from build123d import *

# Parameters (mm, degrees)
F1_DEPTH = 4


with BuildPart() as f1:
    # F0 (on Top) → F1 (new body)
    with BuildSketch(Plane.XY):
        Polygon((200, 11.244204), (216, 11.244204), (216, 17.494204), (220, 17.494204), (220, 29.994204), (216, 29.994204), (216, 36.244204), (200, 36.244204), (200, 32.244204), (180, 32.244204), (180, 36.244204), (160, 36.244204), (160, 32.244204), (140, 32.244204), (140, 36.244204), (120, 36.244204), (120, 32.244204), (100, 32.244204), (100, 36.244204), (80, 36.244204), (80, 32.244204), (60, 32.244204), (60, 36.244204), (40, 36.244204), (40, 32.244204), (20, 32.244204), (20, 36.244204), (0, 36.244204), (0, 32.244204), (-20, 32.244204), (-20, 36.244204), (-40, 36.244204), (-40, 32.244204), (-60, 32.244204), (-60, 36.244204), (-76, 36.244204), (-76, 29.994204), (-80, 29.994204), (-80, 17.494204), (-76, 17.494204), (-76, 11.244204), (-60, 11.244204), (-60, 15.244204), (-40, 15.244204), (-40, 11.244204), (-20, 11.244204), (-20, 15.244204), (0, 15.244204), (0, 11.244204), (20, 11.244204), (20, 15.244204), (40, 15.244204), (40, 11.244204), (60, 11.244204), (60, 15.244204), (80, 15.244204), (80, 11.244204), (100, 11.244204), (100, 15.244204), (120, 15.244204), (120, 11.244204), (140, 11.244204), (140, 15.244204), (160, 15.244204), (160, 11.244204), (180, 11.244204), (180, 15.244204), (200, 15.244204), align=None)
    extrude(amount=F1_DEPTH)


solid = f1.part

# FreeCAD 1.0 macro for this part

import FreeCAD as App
import Part
import Sketcher
from FreeCAD import Vector
Q = App.Units.Quantity

doc = App.newDocument("Part")
body = doc.addObject("PartDesign::Body", "Body")

# Sketch on XY plane
sketch1 = doc.addObject("Sketcher::SketchObject", "Sketch")
body.addObject(sketch1)
sketch1.AttachmentSupport = (doc.XY_Plane, [""])
sketch1.MapMode = "FlatFace"
sketch1.addGeometry(Part.LineSegment(Vector(200, 11.2, 0), Vector(216, 11.2, 0)), False)
sketch1.addGeometry(Part.LineSegment(Vector(216, 11.2, 0), Vector(216, 17.5, 0)), False)
sketch1.addGeometry(Part.LineSegment(Vector(216, 17.5, 0), Vector(220, 17.5, 0)), False)
sketch1.addGeometry(Part.LineSegment(Vector(220, 17.5, 0), Vector(220, 30, 0)), False)
sketch1.addGeometry(Part.LineSegment(Vector(220, 30, 0), Vector(216, 30, 0)), False)
sketch1.addGeometry(Part.LineSegment(Vector(216, 30, 0), Vector(216, 36.2, 0)), False)
sketch1.addGeometry(Part.LineSegment(Vector(216, 36.2, 0), Vector(200, 36.2, 0)), False)
sketch1.addGeometry(Part.LineSegment(Vector(200, 36.2, 0), Vector(200, 32.2, 0)), False)
sketch1.addGeometry(Part.LineSegment(Vector(200, 32.2, 0), Vector(180, 32.2, 0)), False)
sketch1.addGeometry(Part.LineSegment(Vector(180, 32.2, 0), Vector(180, 36.2, 0)), False)
sketch1.addGeometry(Part.LineSegment(Vector(180, 36.2, 0), Vector(160, 36.2, 0)), False)
sketch1.addGeometry(Part.LineSegment(Vector(160, 36.2, 0), Vector(160, 32.2, 0)), False)
sketch1.addGeometry(Part.LineSegment(Vector(160, 32.2, 0), Vector(140, 32.2, 0)), False)
sketch1.addGeometry(Part.LineSegment(Vector(140, 32.2, 0), Vector(140, 36.2, 0)), False)
sketch1.addGeometry(Part.LineSegment(Vector(140, 36.2, 0), Vector(120, 36.2, 0)), False)
sketch1.addGeometry(Part.LineSegment(Vector(120, 36.2, 0), Vector(120, 32.2, 0)), False)
sketch1.addGeometry(Part.LineSegment(Vector(120, 32.2, 0), Vector(100, 32.2, 0)), False)
sketch1.addGeometry(Part.LineSegment(Vector(100, 32.2, 0), Vector(100, 36.2, 0)), False)
sketch1.addGeometry(Part.LineSegment(Vector(100, 36.2, 0), Vector(80, 36.2, 0)), False)
sketch1.addGeometry(Part.LineSegment(Vector(80, 36.2, 0), Vector(80, 32.2, 0)), False)
sketch1.addGeometry(Part.LineSegment(Vector(80, 32.2, 0), Vector(60, 32.2, 0)), False)
sketch1.addGeometry(Part.LineSegment(Vector(60, 32.2, 0), Vector(60, 36.2, 0)), False)
sketch1.addGeometry(Part.LineSegment(Vector(60, 36.2, 0), Vector(40, 36.2, 0)), False)
sketch1.addGeometry(Part.LineSegment(Vector(40, 36.2, 0), Vector(40, 32.2, 0)), False)
sketch1.addGeometry(Part.LineSegment(Vector(40, 32.2, 0), Vector(20, 32.2, 0)), False)
sketch1.addGeometry(Part.LineSegment(Vector(20, 32.2, 0), Vector(20, 36.2, 0)), False)
sketch1.addGeometry(Part.LineSegment(Vector(20, 36.2, 0), Vector(0, 36.2, 0)), False)
sketch1.addGeometry(Part.LineSegment(Vector(0, 36.2, 0), Vector(0, 32.2, 0)), False)
sketch1.addGeometry(Part.LineSegment(Vector(0, 32.2, 0), Vector(-20, 32.2, 0)), False)
sketch1.addGeometry(Part.LineSegment(Vector(-20, 32.2, 0), Vector(-20, 36.2, 0)), False)
sketch1.addGeometry(Part.LineSegment(Vector(-20, 36.2, 0), Vector(-40, 36.2, 0)), False)
sketch1.addGeometry(Part.LineSegment(Vector(-40, 36.2, 0), Vector(-40, 32.2, 0)), False)
sketch1.addGeometry(Part.LineSegment(Vector(-40, 32.2, 0), Vector(-60, 32.2, 0)), False)
sketch1.addGeometry(Part.LineSegment(Vector(-60, 32.2, 0), Vector(-60, 36.2, 0)), False)
sketch1.addGeometry(Part.LineSegment(Vector(-60, 36.2, 0), Vector(-76, 36.2, 0)), False)
sketch1.addGeometry(Part.LineSegment(Vector(-76, 36.2, 0), Vector(-76, 30, 0)), False)
sketch1.addGeometry(Part.LineSegment(Vector(-76, 30, 0), Vector(-80, 30, 0)), False)
sketch1.addGeometry(Part.LineSegment(Vector(-80, 30, 0), Vector(-80, 17.5, 0)), False)
sketch1.addGeometry(Part.LineSegment(Vector(-80, 17.5, 0), Vector(-76, 17.5, 0)), False)
sketch1.addGeometry(Part.LineSegment(Vector(-76, 17.5, 0), Vector(-76, 11.2, 0)), False)
sketch1.addGeometry(Part.LineSegment(Vector(-76, 11.2, 0), Vector(-60, 11.2, 0)), False)
sketch1.addGeometry(Part.LineSegment(Vector(-60, 11.2, 0), Vector(-60, 15.2, 0)), False)
sketch1.addGeometry(Part.LineSegment(Vector(-60, 15.2, 0), Vector(-40, 15.2, 0)), False)
sketch1.addGeometry(Part.LineSegment(Vector(-40, 15.2, 0), Vector(-40, 11.2, 0)), False)
sketch1.addGeometry(Part.LineSegment(Vector(-40, 11.2, 0), Vector(-20, 11.2, 0)), False)
sketch1.addGeometry(Part.LineSegment(Vector(-20, 11.2, 0), Vector(-20, 15.2, 0)), False)
sketch1.addGeometry(Part.LineSegment(Vector(-20, 15.2, 0), Vector(0, 15.2, 0)), False)
sketch1.addGeometry(Part.LineSegment(Vector(0, 15.2, 0), Vector(0, 11.2, 0)), False)
sketch1.addGeometry(Part.LineSegment(Vector(0, 11.2, 0), Vector(20, 11.2, 0)), False)
sketch1.addGeometry(Part.LineSegment(Vector(20, 11.2, 0), Vector(20, 15.2, 0)), False)
sketch1.addGeometry(Part.LineSegment(Vector(20, 15.2, 0), Vector(40, 15.2, 0)), False)
sketch1.addGeometry(Part.LineSegment(Vector(40, 15.2, 0), Vector(40, 11.2, 0)), False)
sketch1.addGeometry(Part.LineSegment(Vector(40, 11.2, 0), Vector(60, 11.2, 0)), False)
sketch1.addGeometry(Part.LineSegment(Vector(60, 11.2, 0), Vector(60, 15.2, 0)), False)
sketch1.addGeometry(Part.LineSegment(Vector(60, 15.2, 0), Vector(80, 15.2, 0)), False)
sketch1.addGeometry(Part.LineSegment(Vector(80, 15.2, 0), Vector(80, 11.2, 0)), False)
sketch1.addGeometry(Part.LineSegment(Vector(80, 11.2, 0), Vector(100, 11.2, 0)), False)
sketch1.addGeometry(Part.LineSegment(Vector(100, 11.2, 0), Vector(100, 15.2, 0)), False)
sketch1.addGeometry(Part.LineSegment(Vector(100, 15.2, 0), Vector(120, 15.2, 0)), False)
sketch1.addGeometry(Part.LineSegment(Vector(120, 15.2, 0), Vector(120, 11.2, 0)), False)
sketch1.addGeometry(Part.LineSegment(Vector(120, 11.2, 0), Vector(140, 11.2, 0)), False)
sketch1.addGeometry(Part.LineSegment(Vector(140, 11.2, 0), Vector(140, 15.2, 0)), False)
sketch1.addGeometry(Part.LineSegment(Vector(140, 15.2, 0), Vector(160, 15.2, 0)), False)
sketch1.addGeometry(Part.LineSegment(Vector(160, 15.2, 0), Vector(160, 11.2, 0)), False)
sketch1.addGeometry(Part.LineSegment(Vector(160, 11.2, 0), Vector(180, 11.2, 0)), False)
sketch1.addGeometry(Part.LineSegment(Vector(180, 11.2, 0), Vector(180, 15.2, 0)), False)
sketch1.addGeometry(Part.LineSegment(Vector(180, 15.2, 0), Vector(200, 15.2, 0)), False)
sketch1.addGeometry(Part.LineSegment(Vector(200, 15.2, 0), Vector(200, 11.2, 0)), False)
sketch1.addConstraint(Sketcher.Constraint("Coincident", 0, 2, 1, 1))
sketch1.addConstraint(Sketcher.Constraint("Coincident", 1, 2, 2, 1))
sketch1.addConstraint(Sketcher.Constraint("Coincident", 2, 2, 3, 1))
sketch1.addConstraint(Sketcher.Constraint("Coincident", 3, 2, 4, 1))
sketch1.addConstraint(Sketcher.Constraint("Coincident", 4, 2, 5, 1))
sketch1.addConstraint(Sketcher.Constraint("Coincident", 5, 2, 6, 1))
sketch1.addConstraint(Sketcher.Constraint("Coincident", 6, 2, 7, 1))
sketch1.addConstraint(Sketcher.Constraint("Coincident", 7, 2, 8, 1))
sketch1.addConstraint(Sketcher.Constraint("Coincident", 8, 2, 9, 1))
sketch1.addConstraint(Sketcher.Constraint("Coincident", 9, 2, 10, 1))
sketch1.addConstraint(Sketcher.Constraint("Coincident", 10, 2, 11, 1))
sketch1.addConstraint(Sketcher.Constraint("Coincident", 11, 2, 12, 1))
sketch1.addConstraint(Sketcher.Constraint("Coincident", 12, 2, 13, 1))
sketch1.addConstraint(Sketcher.Constraint("Coincident", 13, 2, 14, 1))
sketch1.addConstraint(Sketcher.Constraint("Coincident", 14, 2, 15, 1))
sketch1.addConstraint(Sketcher.Constraint("Coincident", 15, 2, 16, 1))
sketch1.addConstraint(Sketcher.Constraint("Coincident", 16, 2, 17, 1))
sketch1.addConstraint(Sketcher.Constraint("Coincident", 17, 2, 18, 1))
sketch1.addConstraint(Sketcher.Constraint("Coincident", 18, 2, 19, 1))
sketch1.addConstraint(Sketcher.Constraint("Coincident", 19, 2, 20, 1))
sketch1.addConstraint(Sketcher.Constraint("Coincident", 20, 2, 21, 1))
sketch1.addConstraint(Sketcher.Constraint("Coincident", 21, 2, 22, 1))
sketch1.addConstraint(Sketcher.Constraint("Coincident", 22, 2, 23, 1))
sketch1.addConstraint(Sketcher.Constraint("Coincident", 23, 2, 24, 1))
sketch1.addConstraint(Sketcher.Constraint("Coincident", 24, 2, 25, 1))
sketch1.addConstraint(Sketcher.Constraint("Coincident", 25, 2, 26, 1))
sketch1.addConstraint(Sketcher.Constraint("Coincident", 26, 2, 27, 1))
sketch1.addConstraint(Sketcher.Constraint("Coincident", 27, 2, 28, 1))
sketch1.addConstraint(Sketcher.Constraint("Coincident", 28, 2, 29, 1))
sketch1.addConstraint(Sketcher.Constraint("Coincident", 29, 2, 30, 1))
sketch1.addConstraint(Sketcher.Constraint("Coincident", 30, 2, 31, 1))
sketch1.addConstraint(Sketcher.Constraint("Coincident", 31, 2, 32, 1))
sketch1.addConstraint(Sketcher.Constraint("Coincident", 32, 2, 33, 1))
sketch1.addConstraint(Sketcher.Constraint("Coincident", 33, 2, 34, 1))
sketch1.addConstraint(Sketcher.Constraint("Coincident", 34, 2, 35, 1))
sketch1.addConstraint(Sketcher.Constraint("Coincident", 35, 2, 36, 1))
sketch1.addConstraint(Sketcher.Constraint("Coincident", 36, 2, 37, 1))
sketch1.addConstraint(Sketcher.Constraint("Coincident", 37, 2, 38, 1))
sketch1.addConstraint(Sketcher.Constraint("Coincident", 38, 2, 39, 1))
sketch1.addConstraint(Sketcher.Constraint("Coincident", 39, 2, 40, 1))
sketch1.addConstraint(Sketcher.Constraint("Coincident", 40, 2, 41, 1))
sketch1.addConstraint(Sketcher.Constraint("Coincident", 41, 2, 42, 1))
sketch1.addConstraint(Sketcher.Constraint("Coincident", 42, 2, 43, 1))
sketch1.addConstraint(Sketcher.Constraint("Coincident", 43, 2, 44, 1))
sketch1.addConstraint(Sketcher.Constraint("Coincident", 44, 2, 45, 1))
sketch1.addConstraint(Sketcher.Constraint("Coincident", 45, 2, 46, 1))
sketch1.addConstraint(Sketcher.Constraint("Coincident", 46, 2, 47, 1))
sketch1.addConstraint(Sketcher.Constraint("Coincident", 47, 2, 48, 1))
sketch1.addConstraint(Sketcher.Constraint("Coincident", 48, 2, 49, 1))
sketch1.addConstraint(Sketcher.Constraint("Coincident", 49, 2, 50, 1))
sketch1.addConstraint(Sketcher.Constraint("Coincident", 50, 2, 51, 1))
sketch1.addConstraint(Sketcher.Constraint("Coincident", 51, 2, 52, 1))
sketch1.addConstraint(Sketcher.Constraint("Coincident", 52, 2, 53, 1))
sketch1.addConstraint(Sketcher.Constraint("Coincident", 53, 2, 54, 1))
sketch1.addConstraint(Sketcher.Constraint("Coincident", 54, 2, 55, 1))
sketch1.addConstraint(Sketcher.Constraint("Coincident", 55, 2, 56, 1))
sketch1.addConstraint(Sketcher.Constraint("Coincident", 56, 2, 57, 1))
sketch1.addConstraint(Sketcher.Constraint("Coincident", 57, 2, 58, 1))
sketch1.addConstraint(Sketcher.Constraint("Coincident", 58, 2, 59, 1))
sketch1.addConstraint(Sketcher.Constraint("Coincident", 59, 2, 60, 1))
sketch1.addConstraint(Sketcher.Constraint("Coincident", 60, 2, 61, 1))
sketch1.addConstraint(Sketcher.Constraint("Coincident", 61, 2, 62, 1))
sketch1.addConstraint(Sketcher.Constraint("Coincident", 62, 2, 63, 1))
sketch1.addConstraint(Sketcher.Constraint("Coincident", 63, 2, 64, 1))
sketch1.addConstraint(Sketcher.Constraint("Coincident", 64, 2, 65, 1))
sketch1.addConstraint(Sketcher.Constraint("Coincident", 65, 2, 66, 1))
sketch1.addConstraint(Sketcher.Constraint("Coincident", 66, 2, 67, 1))
sketch1.addConstraint(Sketcher.Constraint("Coincident", 67, 2, 0, 1))
sketch1.addConstraint(Sketcher.Constraint("Horizontal", 0))
sketch1.addConstraint(Sketcher.Constraint("Vertical", 1))
sketch1.addConstraint(Sketcher.Constraint("Horizontal", 2))
sketch1.addConstraint(Sketcher.Constraint("Vertical", 3))
sketch1.addConstraint(Sketcher.Constraint("Horizontal", 4))
sketch1.addConstraint(Sketcher.Constraint("Vertical", 5))
sketch1.addConstraint(Sketcher.Constraint("Horizontal", 6))
sketch1.addConstraint(Sketcher.Constraint("Vertical", 7))
sketch1.addConstraint(Sketcher.Constraint("Horizontal", 8))
sketch1.addConstraint(Sketcher.Constraint("Vertical", 9))
sketch1.addConstraint(Sketcher.Constraint("Horizontal", 10))
sketch1.addConstraint(Sketcher.Constraint("Vertical", 11))
sketch1.addConstraint(Sketcher.Constraint("Horizontal", 12))
sketch1.addConstraint(Sketcher.Constraint("Vertical", 13))
sketch1.addConstraint(Sketcher.Constraint("Horizontal", 14))
sketch1.addConstraint(Sketcher.Constraint("Vertical", 15))
sketch1.addConstraint(Sketcher.Constraint("Horizontal", 16))
sketch1.addConstraint(Sketcher.Constraint("Vertical", 17))
sketch1.addConstraint(Sketcher.Constraint("Horizontal", 18))
sketch1.addConstraint(Sketcher.Constraint("Vertical", 19))
sketch1.addConstraint(Sketcher.Constraint("Horizontal", 20))
sketch1.addConstraint(Sketcher.Constraint("Vertical", 21))
sketch1.addConstraint(Sketcher.Constraint("Horizontal", 22))
sketch1.addConstraint(Sketcher.Constraint("Vertical", 23))
sketch1.addConstraint(Sketcher.Constraint("Horizontal", 24))
sketch1.addConstraint(Sketcher.Constraint("Vertical", 25))
sketch1.addConstraint(Sketcher.Constraint("Horizontal", 26))
sketch1.addConstraint(Sketcher.Constraint("Vertical", 27))
sketch1.addConstraint(Sketcher.Constraint("Horizontal", 28))
sketch1.addConstraint(Sketcher.Constraint("Vertical", 29))
sketch1.addConstraint(Sketcher.Constraint("Horizontal", 30))
sketch1.addConstraint(Sketcher.Constraint("Vertical", 31))
sketch1.addConstraint(Sketcher.Constraint("Horizontal", 32))
sketch1.addConstraint(Sketcher.Constraint("Vertical", 33))
sketch1.addConstraint(Sketcher.Constraint("Horizontal", 34))
sketch1.addConstraint(Sketcher.Constraint("Vertical", 35))
sketch1.addConstraint(Sketcher.Constraint("Horizontal", 36))
sketch1.addConstraint(Sketcher.Constraint("Vertical", 37))
sketch1.addConstraint(Sketcher.Constraint("Horizontal", 38))
sketch1.addConstraint(Sketcher.Constraint("Vertical", 39))
sketch1.addConstraint(Sketcher.Constraint("Horizontal", 40))
sketch1.addConstraint(Sketcher.Constraint("Vertical", 41))
sketch1.addConstraint(Sketcher.Constraint("Horizontal", 42))
sketch1.addConstraint(Sketcher.Constraint("Vertical", 43))
sketch1.addConstraint(Sketcher.Constraint("Horizontal", 44))
sketch1.addConstraint(Sketcher.Constraint("Vertical", 45))
sketch1.addConstraint(Sketcher.Constraint("Horizontal", 46))
sketch1.addConstraint(Sketcher.Constraint("Vertical", 47))
sketch1.addConstraint(Sketcher.Constraint("Horizontal", 48))
sketch1.addConstraint(Sketcher.Constraint("Vertical", 49))
sketch1.addConstraint(Sketcher.Constraint("Horizontal", 50))
sketch1.addConstraint(Sketcher.Constraint("Vertical", 51))
sketch1.addConstraint(Sketcher.Constraint("Horizontal", 52))
sketch1.addConstraint(Sketcher.Constraint("Vertical", 53))
sketch1.addConstraint(Sketcher.Constraint("Horizontal", 54))
sketch1.addConstraint(Sketcher.Constraint("Vertical", 55))
sketch1.addConstraint(Sketcher.Constraint("Horizontal", 56))
sketch1.addConstraint(Sketcher.Constraint("Vertical", 57))
sketch1.addConstraint(Sketcher.Constraint("Horizontal", 58))
sketch1.addConstraint(Sketcher.Constraint("Vertical", 59))
sketch1.addConstraint(Sketcher.Constraint("Horizontal", 60))
sketch1.addConstraint(Sketcher.Constraint("Vertical", 61))
sketch1.addConstraint(Sketcher.Constraint("Horizontal", 62))
sketch1.addConstraint(Sketcher.Constraint("Vertical", 63))
sketch1.addConstraint(Sketcher.Constraint("Horizontal", 64))
sketch1.addConstraint(Sketcher.Constraint("Vertical", 65))
sketch1.addConstraint(Sketcher.Constraint("Horizontal", 66))
sketch1.addConstraint(Sketcher.Constraint("Vertical", 67))
sketch1.addConstraint(Sketcher.Constraint("Symmetric", 24, 2, 28, 2, -2))
sketch1.addConstraint(Sketcher.Constraint("Symmetric", 22, 2, 30, 2, -2))
sketch1.addConstraint(Sketcher.Constraint("Symmetric", 20, 2, 32, 2, -2))
sketch1.addConstraint(Sketcher.Constraint("Symmetric", 44, 2, 48, 2, -2))
sketch1.addConstraint(Sketcher.Constraint("Symmetric", 42, 2, 50, 2, -2))
sketch1.addConstraint(Sketcher.Constraint("Symmetric", 40, 2, 52, 2, -2))
sketch1.addConstraint(Sketcher.Constraint("PointOnObject", 26, 2, -2))
sketch1.addConstraint(Sketcher.Constraint("PointOnObject", 46, 2, -2))
sketch1.addConstraint(Sketcher.Constraint("Horizontal", 6, 2, 9, 2))
sketch1.addConstraint(Sketcher.Constraint("Horizontal", 8, 2, 11, 2))
sketch1.addConstraint(Sketcher.Constraint("Horizontal", 10, 2, 13, 2))
sketch1.addConstraint(Sketcher.Constraint("Horizontal", 12, 2, 15, 2))
sketch1.addConstraint(Sketcher.Constraint("Horizontal", 14, 2, 17, 2))
sketch1.addConstraint(Sketcher.Constraint("Horizontal", 16, 2, 19, 2))
sketch1.addConstraint(Sketcher.Constraint("Horizontal", 18, 2, 21, 2))
sketch1.addConstraint(Sketcher.Constraint("Horizontal", 20, 2, 23, 2))
sketch1.addConstraint(Sketcher.Constraint("Horizontal", 22, 2, 25, 2))
sketch1.addConstraint(Sketcher.Constraint("Horizontal", 30, 2, 33, 2))
sketch1.addConstraint(Sketcher.Constraint("Horizontal", 4, 2, 35, 2))
sketch1.addConstraint(Sketcher.Constraint("Horizontal", 2, 2, 37, 2))
sketch1.addConstraint(Sketcher.Constraint("Horizontal", 0, 2, 39, 2))
sketch1.addConstraint(Sketcher.Constraint("Horizontal", 40, 2, 43, 2))
sketch1.addConstraint(Sketcher.Constraint("Horizontal", 42, 2, 45, 2))
sketch1.addConstraint(Sketcher.Constraint("Horizontal", 50, 2, 53, 2))
sketch1.addConstraint(Sketcher.Constraint("Horizontal", 52, 2, 55, 2))
sketch1.addConstraint(Sketcher.Constraint("Horizontal", 54, 2, 57, 2))
sketch1.addConstraint(Sketcher.Constraint("Horizontal", 56, 2, 59, 2))
sketch1.addConstraint(Sketcher.Constraint("Horizontal", 58, 2, 61, 2))
sketch1.addConstraint(Sketcher.Constraint("Horizontal", 60, 2, 63, 2))
sketch1.addConstraint(Sketcher.Constraint("Horizontal", 62, 2, 65, 2))
sketch1.addConstraint(Sketcher.Constraint("Vertical", 1, 2, 4, 2))
sketch1.addConstraint(Sketcher.Constraint("Vertical", 35, 2, 38, 2))
sketch1.addConstraint(Sketcher.Constraint("Vertical", 33, 2, 40, 2))
sketch1.addConstraint(Sketcher.Constraint("Vertical", 31, 2, 42, 2))
sketch1.addConstraint(Sketcher.Constraint("Vertical", 29, 2, 44, 2))
sketch1.addConstraint(Sketcher.Constraint("Vertical", 19, 2, 54, 2))
sketch1.addConstraint(Sketcher.Constraint("Vertical", 17, 2, 56, 2))
sketch1.addConstraint(Sketcher.Constraint("Vertical", 15, 2, 58, 2))
sketch1.addConstraint(Sketcher.Constraint("Vertical", 13, 2, 60, 2))
sketch1.addConstraint(Sketcher.Constraint("Vertical", 11, 2, 62, 2))
sketch1.addConstraint(Sketcher.Constraint("Vertical", 9, 2, 64, 2))
sketch1.addConstraint(Sketcher.Constraint("Vertical", 7, 2, 66, 2))
sketch1.addConstraint(Sketcher.Constraint("Equal", 8, 10))
sketch1.addConstraint(Sketcher.Constraint("Equal", 10, 12))
sketch1.addConstraint(Sketcher.Constraint("Equal", 12, 14))
sketch1.addConstraint(Sketcher.Constraint("Equal", 14, 16))
sketch1.addConstraint(Sketcher.Constraint("Equal", 16, 18))
sketch1.addConstraint(Sketcher.Constraint("Equal", 18, 20))
sketch1.addConstraint(Sketcher.Constraint("Equal", 20, 22))
sketch1.addConstraint(Sketcher.Constraint("Equal", 22, 24))
sketch1.addConstraint(Sketcher.Constraint("Equal", 24, 26))
sketch1.addConstraint(Sketcher.Constraint("Equal", 6, 34))
sketch1.addConstraint(Sketcher.Constraint("Equal", 4, 36))
sketch1.addConstraint(Sketcher.Constraint("Equal", 1, 5))
sketch1.addConstraint(Sketcher.Constraint("Equal", 38, 7))
sketch1.addConstraint(Sketcher.Constraint("Equal", 33, 41))
sketch1.addConstraint(Sketcher.Constraint("DistanceX", 0, 1, 0, 2, Q("16 mm")))
sketch1.addConstraint(Sketcher.Constraint("DistanceX", 2, 1, 2, 2, Q("4 mm")))
sketch1.addConstraint(Sketcher.Constraint("DistanceX", 8, 2, 8, 1, Q("20 mm")))
sketch1.addConstraint(Sketcher.Constraint("DistanceY", 3, 1, 3, 2, Q("12.5 mm")))
sketch1.addConstraint(Sketcher.Constraint("DistanceY", 1, 1, 1, 2, Q("6.25 mm")))
sketch1.addConstraint(Sketcher.Constraint("DistanceY", -1, 1, 0, 2, Q("11.244204 mm")))
pad1 = doc.addObject("PartDesign::Pad", "Pad")
body.addObject(pad1)
pad1.Profile = sketch1
pad1.Length = 4

doc.recompute()
